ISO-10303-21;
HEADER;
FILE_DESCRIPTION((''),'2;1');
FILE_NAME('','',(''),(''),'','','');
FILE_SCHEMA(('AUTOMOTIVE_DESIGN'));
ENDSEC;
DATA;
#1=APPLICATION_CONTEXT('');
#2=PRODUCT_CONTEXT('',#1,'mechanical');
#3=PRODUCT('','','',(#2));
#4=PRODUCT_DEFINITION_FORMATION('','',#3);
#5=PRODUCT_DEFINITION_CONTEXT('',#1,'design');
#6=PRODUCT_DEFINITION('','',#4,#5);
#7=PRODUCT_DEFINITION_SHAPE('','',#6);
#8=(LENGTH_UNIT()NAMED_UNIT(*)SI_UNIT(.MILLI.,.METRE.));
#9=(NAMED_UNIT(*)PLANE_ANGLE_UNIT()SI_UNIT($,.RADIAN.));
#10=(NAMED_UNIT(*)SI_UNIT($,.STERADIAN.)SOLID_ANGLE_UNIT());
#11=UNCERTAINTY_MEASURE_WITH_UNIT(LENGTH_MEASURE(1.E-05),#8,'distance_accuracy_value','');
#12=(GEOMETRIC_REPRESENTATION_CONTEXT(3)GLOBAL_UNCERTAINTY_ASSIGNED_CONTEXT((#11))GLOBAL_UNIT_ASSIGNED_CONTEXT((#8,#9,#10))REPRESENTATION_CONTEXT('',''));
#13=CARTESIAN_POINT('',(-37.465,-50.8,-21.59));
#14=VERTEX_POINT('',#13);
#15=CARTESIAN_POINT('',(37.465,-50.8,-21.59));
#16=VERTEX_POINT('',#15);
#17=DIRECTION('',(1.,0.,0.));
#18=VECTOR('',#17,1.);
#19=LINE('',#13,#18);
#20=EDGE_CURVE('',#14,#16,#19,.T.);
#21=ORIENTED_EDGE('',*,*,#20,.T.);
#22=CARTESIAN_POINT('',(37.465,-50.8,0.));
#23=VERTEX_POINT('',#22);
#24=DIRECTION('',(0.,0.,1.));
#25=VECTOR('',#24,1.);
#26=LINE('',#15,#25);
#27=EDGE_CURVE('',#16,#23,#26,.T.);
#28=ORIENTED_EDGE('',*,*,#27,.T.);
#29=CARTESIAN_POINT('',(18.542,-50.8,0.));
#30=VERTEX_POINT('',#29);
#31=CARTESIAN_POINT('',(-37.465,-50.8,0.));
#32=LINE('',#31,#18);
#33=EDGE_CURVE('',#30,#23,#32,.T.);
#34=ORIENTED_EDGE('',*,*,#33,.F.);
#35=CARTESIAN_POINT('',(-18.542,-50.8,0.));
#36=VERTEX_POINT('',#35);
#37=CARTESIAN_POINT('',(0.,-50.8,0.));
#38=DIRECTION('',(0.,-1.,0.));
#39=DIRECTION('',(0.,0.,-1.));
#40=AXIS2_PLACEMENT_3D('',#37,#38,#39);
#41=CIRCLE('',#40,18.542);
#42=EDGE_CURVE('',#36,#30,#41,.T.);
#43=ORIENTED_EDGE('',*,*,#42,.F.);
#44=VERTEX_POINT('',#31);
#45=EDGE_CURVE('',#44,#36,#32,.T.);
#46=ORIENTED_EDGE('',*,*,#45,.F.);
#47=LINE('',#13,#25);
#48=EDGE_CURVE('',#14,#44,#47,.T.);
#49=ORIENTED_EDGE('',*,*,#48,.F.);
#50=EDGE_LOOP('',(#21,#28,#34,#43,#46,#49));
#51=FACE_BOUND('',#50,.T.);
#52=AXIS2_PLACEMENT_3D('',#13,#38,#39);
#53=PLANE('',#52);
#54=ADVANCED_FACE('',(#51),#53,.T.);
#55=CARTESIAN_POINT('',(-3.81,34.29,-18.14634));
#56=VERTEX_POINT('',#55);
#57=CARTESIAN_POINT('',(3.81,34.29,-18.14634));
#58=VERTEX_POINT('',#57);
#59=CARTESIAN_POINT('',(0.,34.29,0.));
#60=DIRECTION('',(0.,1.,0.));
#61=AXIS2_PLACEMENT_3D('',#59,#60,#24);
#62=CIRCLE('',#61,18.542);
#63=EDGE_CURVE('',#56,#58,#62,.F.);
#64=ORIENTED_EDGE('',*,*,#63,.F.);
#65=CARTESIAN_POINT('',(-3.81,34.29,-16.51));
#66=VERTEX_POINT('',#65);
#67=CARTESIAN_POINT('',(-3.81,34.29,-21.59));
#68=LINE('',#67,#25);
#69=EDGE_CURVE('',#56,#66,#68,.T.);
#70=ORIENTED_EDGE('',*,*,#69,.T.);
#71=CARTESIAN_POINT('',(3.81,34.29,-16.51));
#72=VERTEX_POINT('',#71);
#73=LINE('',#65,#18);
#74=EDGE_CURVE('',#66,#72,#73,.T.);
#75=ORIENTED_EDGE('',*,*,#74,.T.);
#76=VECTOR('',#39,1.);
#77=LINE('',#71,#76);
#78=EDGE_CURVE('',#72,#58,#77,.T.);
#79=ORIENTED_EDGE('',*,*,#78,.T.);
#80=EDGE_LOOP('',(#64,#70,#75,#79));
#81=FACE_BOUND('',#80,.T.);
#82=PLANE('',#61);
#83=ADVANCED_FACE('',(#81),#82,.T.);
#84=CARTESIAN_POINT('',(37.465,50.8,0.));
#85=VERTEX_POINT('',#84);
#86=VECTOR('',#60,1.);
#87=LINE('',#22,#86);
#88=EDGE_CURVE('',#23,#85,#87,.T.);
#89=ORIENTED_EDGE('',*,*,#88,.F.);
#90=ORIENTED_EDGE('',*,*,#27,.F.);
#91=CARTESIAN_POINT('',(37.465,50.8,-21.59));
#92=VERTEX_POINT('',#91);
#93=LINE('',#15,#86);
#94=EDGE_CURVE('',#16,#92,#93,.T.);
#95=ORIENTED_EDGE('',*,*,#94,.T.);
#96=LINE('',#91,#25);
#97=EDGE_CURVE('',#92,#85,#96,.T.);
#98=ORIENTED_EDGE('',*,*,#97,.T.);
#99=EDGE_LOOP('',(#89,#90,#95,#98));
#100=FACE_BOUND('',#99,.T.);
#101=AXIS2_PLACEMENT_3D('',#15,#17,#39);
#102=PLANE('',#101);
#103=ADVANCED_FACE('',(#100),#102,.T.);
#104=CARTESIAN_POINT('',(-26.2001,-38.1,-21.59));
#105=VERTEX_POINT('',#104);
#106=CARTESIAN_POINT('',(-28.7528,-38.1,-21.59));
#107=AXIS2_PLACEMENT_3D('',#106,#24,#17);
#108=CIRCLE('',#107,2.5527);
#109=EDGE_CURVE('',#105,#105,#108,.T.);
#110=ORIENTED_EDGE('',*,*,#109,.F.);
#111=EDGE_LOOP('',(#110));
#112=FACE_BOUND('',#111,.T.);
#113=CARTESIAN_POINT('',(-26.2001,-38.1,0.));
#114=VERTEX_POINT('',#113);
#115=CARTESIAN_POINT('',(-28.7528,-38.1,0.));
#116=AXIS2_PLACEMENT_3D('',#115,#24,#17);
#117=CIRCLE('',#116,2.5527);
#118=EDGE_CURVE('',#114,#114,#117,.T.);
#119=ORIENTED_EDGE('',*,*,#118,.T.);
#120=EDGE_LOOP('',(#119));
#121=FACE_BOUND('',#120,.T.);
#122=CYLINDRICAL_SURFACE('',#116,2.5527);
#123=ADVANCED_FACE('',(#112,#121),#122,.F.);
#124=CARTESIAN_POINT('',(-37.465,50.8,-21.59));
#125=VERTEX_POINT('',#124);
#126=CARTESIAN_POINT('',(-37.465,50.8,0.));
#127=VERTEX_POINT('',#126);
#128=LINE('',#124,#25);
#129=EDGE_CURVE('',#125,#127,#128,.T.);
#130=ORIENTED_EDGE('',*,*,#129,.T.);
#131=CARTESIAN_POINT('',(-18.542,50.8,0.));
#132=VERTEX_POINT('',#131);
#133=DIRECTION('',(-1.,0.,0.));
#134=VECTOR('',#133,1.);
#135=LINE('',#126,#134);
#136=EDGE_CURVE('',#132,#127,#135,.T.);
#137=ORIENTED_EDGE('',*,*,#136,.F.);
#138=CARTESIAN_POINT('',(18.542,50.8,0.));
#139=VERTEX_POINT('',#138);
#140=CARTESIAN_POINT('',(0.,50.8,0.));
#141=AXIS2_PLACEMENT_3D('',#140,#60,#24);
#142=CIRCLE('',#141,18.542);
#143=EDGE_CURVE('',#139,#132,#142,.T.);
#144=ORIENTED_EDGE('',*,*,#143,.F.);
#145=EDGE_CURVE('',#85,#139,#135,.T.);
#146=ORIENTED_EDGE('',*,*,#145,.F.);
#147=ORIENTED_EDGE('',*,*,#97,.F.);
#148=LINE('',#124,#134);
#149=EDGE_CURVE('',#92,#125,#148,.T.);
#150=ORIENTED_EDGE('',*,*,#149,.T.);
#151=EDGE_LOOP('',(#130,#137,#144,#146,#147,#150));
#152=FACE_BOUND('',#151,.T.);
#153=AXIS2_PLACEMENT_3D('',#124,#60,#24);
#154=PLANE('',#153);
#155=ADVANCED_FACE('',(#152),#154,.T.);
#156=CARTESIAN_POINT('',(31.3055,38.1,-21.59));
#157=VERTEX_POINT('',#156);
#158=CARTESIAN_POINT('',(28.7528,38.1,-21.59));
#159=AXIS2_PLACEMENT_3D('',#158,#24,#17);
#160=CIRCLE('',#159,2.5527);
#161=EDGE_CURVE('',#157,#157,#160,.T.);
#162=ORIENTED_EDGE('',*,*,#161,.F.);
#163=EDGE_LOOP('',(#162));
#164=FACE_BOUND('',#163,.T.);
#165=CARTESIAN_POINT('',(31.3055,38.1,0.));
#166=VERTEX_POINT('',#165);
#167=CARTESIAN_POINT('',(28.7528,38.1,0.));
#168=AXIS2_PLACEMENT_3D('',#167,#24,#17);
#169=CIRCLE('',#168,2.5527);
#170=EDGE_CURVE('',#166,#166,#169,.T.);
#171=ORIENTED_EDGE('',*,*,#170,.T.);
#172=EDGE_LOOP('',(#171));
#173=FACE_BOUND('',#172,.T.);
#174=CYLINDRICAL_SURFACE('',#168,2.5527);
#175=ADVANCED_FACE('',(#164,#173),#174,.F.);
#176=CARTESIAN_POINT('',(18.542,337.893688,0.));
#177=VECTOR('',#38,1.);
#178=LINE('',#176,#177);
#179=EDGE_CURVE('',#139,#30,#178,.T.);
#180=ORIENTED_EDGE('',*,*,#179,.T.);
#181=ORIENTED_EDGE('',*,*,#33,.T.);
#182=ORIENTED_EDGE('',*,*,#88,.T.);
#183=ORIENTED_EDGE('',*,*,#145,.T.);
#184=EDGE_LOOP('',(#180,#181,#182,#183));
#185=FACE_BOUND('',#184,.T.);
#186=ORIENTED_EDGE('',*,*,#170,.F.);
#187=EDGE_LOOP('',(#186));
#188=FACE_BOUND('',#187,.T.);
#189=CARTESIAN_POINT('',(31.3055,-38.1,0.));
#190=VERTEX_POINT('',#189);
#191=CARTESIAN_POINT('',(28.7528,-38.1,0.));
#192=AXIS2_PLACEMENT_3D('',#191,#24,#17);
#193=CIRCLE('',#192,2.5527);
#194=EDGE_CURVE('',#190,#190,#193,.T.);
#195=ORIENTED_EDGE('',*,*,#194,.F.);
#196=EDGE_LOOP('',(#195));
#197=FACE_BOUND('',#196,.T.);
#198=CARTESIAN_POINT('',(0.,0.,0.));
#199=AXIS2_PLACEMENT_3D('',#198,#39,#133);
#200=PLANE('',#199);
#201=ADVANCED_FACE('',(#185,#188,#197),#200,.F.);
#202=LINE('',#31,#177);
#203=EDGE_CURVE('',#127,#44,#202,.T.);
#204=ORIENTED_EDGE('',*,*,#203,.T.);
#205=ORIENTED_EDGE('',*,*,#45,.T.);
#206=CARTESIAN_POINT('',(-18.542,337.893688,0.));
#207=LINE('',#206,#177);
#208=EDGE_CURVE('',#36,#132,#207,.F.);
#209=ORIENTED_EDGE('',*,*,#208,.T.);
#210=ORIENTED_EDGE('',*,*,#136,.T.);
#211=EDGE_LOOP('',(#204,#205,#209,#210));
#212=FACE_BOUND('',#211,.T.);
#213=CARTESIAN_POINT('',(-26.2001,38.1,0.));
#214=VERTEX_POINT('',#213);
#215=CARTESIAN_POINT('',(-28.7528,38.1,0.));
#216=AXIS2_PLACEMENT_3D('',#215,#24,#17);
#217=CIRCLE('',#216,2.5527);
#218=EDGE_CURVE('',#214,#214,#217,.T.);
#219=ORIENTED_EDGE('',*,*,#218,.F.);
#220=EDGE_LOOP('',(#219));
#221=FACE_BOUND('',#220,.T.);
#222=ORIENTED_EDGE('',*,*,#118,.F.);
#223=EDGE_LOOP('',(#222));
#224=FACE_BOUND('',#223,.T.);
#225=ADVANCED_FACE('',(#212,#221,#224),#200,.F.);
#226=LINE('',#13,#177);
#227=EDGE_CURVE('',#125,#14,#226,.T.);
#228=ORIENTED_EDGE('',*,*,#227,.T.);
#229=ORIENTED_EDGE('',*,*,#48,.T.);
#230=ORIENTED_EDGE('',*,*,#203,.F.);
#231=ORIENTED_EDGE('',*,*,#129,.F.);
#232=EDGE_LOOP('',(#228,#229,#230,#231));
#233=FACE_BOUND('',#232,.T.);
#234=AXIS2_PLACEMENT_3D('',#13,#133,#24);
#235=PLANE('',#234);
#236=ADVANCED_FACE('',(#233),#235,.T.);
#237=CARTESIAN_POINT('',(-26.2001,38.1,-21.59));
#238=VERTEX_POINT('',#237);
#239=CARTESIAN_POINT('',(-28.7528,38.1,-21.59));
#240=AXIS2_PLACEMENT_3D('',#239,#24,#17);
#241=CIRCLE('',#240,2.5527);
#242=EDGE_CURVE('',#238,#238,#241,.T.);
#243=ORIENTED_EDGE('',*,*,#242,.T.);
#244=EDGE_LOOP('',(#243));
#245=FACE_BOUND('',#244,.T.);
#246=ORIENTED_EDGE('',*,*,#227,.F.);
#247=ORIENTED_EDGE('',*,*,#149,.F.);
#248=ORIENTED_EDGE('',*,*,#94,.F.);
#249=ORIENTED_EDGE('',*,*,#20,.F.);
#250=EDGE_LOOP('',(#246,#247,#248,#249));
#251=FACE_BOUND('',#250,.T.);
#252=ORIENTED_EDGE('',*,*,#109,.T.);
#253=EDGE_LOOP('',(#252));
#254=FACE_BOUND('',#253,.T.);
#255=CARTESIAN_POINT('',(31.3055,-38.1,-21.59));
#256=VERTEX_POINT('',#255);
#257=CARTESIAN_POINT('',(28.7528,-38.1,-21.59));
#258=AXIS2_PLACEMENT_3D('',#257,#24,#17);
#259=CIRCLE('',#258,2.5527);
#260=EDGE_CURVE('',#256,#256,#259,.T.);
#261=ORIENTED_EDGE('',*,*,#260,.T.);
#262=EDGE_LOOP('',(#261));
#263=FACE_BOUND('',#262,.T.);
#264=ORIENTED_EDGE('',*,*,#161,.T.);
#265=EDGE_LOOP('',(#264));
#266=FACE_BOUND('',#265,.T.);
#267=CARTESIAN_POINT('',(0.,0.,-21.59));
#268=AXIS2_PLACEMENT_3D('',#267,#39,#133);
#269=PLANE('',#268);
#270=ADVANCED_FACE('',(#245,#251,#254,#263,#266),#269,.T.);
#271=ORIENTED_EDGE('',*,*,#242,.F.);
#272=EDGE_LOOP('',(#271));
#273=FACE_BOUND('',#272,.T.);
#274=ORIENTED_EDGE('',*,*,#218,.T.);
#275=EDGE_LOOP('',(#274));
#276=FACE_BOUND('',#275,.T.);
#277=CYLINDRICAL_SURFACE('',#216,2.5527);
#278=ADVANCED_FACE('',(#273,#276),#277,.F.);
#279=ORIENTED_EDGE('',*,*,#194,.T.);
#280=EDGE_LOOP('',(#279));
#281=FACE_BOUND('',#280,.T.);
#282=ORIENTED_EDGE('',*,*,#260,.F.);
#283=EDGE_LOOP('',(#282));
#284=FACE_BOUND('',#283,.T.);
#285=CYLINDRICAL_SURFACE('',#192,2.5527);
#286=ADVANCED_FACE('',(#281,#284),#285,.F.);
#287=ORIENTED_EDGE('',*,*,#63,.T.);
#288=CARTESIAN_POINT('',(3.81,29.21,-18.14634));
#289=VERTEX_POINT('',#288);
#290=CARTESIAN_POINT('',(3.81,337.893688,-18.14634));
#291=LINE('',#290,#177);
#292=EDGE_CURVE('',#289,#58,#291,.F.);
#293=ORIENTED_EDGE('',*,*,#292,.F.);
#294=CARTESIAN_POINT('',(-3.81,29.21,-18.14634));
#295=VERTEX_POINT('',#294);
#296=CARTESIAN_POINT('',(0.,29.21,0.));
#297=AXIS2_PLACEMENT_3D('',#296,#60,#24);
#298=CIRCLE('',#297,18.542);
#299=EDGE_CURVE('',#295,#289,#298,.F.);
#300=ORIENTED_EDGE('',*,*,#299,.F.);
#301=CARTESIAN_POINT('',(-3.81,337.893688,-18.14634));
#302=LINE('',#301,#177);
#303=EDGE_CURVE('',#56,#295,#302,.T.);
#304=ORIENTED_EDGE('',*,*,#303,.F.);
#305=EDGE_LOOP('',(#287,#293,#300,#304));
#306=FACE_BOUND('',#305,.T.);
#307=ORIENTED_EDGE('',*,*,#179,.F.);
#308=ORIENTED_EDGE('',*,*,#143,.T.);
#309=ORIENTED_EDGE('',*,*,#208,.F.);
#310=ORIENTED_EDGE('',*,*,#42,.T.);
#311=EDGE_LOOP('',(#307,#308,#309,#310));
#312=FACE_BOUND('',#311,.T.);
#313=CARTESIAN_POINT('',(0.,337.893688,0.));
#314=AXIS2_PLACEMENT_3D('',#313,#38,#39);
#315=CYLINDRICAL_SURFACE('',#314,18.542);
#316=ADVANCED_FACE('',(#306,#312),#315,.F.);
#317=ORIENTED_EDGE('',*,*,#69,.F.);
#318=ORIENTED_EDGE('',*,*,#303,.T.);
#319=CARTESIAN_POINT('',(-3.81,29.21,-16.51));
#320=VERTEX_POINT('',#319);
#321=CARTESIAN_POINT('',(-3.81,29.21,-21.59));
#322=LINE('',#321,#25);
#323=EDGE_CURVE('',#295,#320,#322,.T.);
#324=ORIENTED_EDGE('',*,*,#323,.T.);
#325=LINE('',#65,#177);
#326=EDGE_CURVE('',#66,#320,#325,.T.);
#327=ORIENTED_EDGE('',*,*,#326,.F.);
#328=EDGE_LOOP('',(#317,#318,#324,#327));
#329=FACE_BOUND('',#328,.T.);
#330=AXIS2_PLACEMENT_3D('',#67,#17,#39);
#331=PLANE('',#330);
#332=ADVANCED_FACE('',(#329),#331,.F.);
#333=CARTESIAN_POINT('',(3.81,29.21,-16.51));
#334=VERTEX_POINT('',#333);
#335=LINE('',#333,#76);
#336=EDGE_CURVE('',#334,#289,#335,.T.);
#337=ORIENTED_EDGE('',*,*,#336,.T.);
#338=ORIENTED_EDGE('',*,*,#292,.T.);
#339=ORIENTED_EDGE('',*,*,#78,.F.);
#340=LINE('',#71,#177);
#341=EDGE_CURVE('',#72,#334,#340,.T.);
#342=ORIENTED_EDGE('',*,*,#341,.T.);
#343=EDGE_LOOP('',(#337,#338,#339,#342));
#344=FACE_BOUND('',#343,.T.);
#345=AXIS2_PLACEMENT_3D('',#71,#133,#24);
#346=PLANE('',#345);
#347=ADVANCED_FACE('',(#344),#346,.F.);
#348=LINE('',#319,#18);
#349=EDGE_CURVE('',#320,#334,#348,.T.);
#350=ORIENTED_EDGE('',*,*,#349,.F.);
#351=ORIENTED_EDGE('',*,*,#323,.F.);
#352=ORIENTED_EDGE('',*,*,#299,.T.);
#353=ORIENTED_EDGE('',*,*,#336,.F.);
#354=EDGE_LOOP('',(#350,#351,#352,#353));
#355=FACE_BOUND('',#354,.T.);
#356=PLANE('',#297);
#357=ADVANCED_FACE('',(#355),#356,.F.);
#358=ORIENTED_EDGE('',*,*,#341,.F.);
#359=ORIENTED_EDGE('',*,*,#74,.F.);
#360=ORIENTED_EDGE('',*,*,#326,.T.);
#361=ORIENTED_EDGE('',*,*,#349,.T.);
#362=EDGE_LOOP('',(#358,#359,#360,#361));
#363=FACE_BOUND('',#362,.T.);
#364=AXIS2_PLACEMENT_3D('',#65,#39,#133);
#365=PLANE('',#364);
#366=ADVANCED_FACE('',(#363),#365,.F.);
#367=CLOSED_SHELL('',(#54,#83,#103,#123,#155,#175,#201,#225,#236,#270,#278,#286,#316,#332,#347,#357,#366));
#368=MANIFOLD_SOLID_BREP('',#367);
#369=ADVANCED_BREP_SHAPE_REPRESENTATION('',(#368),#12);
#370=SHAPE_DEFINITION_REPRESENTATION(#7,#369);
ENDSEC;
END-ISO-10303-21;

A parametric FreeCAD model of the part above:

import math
import FreeCAD as App
import Part
import Sketcher

V = App.Vector
Q = App.Units.Quantity


def add_polygon(sketch, points):
    """Adds a closed chain of lines whose ends are joined by coincident constraints."""
    first, n = sketch.GeometryCount, len(points)
    for a, b in zip(points, points[1:] + points[:1]):
        sketch.addGeometry(Part.LineSegment(App.Vector(*a, 0), App.Vector(*b, 0)), False)
    for i in range(n):
        sketch.addConstraint(Sketcher.Constraint("Coincident", first + i, 2, first + (i + 1) % n, 1))

doc = App.newDocument("Part")
body = doc.addObject("PartDesign::Body", "Body")

# Sketch on XY plane
sketch1 = body.newObject("Sketcher::SketchObject", "Sketch")
sketch1.AttachmentSupport = (doc.getObject("XY_Plane"), [""])
sketch1.MapMode = "FlatFace"
add_polygon(sketch1, [(-37, 51), (-37, -51), (37, -51), (37, 51)])  # lines 0-3
sketch1.addConstraint([
    Sketcher.Constraint("Vertical", 0),
    Sketcher.Constraint("Horizontal", 1),
    Sketcher.Constraint("Vertical", 2),
    Sketcher.Constraint("Horizontal", 3),
    Sketcher.Constraint("Symmetric", 0, 2, 2, 2, -1, 1),
    Sketcher.Constraint("DistanceY", 0, 2, 0, 1, Q("4 in")),
    Sketcher.Constraint("DistanceX", 1, 1, 1, 2, Q("2.95 in")),
])
pad1 = body.newObject("PartDesign::Pad", "Pad")
pad1.Profile = sketch1
pad1.Length = Q("0.85 in")
pad1.Reversed = True

# Sketch on XZ plane
sketch2 = body.newObject("Sketcher::SketchObject", "Sketch001")
sketch2.AttachmentSupport = (doc.getObject("XZ_Plane"), [""])
sketch2.MapMode = "FlatFace"
sketch2.AttachmentOffset = App.Placement(V(0, 0, -2 * 25.4), App.Rotation())
sketch2.addGeometry([
    Part.ArcOfCircle(Part.Circle(V(0, 0, 0), V(0, 0, 1), 19), math.radians(180), math.radians(360)),
    Part.LineSegment(V(-19, 0, 0), V(-19, 390, 0)),
    Part.LineSegment(V(-19, 390, 0), V(19, 390, 0)),
    Part.LineSegment(V(19, 390, 0), V(19, 0, 0)),
], False)
sketch2.addConstraint([
    Sketcher.Constraint("Tangent", 0, 1, 1, 1),
    Sketcher.Constraint("Coincident", 1, 2, 2, 1),
    Sketcher.Constraint("Coincident", 2, 2, 3, 1),
    Sketcher.Constraint("Tangent", 3, 2, 0, 2),
    Sketcher.Constraint("Vertical", 1),
    Sketcher.Constraint("Horizontal", 2),
    Sketcher.Constraint("Vertical", 3),
    Sketcher.Constraint("Coincident", 0, 3, -1, 1),
    Sketcher.Constraint("Radius", 0, Q("0.73 in")),
    Sketcher.Constraint("DistanceY", 1, 1, 1, 2, 390.145578),
])
pocket1 = body.newObject("PartDesign::Pocket", "Pocket")
pocket1.Profile = sketch2
pocket1.Type = "ThroughAll"
pocket1.Midplane = True

# Sketch on XZ plane
sketch3 = body.newObject("Sketcher::SketchObject", "Sketch002")
sketch3.AttachmentSupport = (doc.getObject("XZ_Plane"), [""])
sketch3.MapMode = "FlatFace"
sketch3.AttachmentOffset = App.Placement(V(0, 0, -1.25 * 25.4), App.Rotation())
add_polygon(sketch3, [(-4, -22), (-4, -17), (4, -17), (4, -22)])  # lines 0-3
sketch3.addConstraint([
    Sketcher.Constraint("Vertical", 0),
    Sketcher.Constraint("Horizontal", 1),
    Sketcher.Constraint("Vertical", 2),
    Sketcher.Constraint("Horizontal", 3),
    Sketcher.Constraint("DistanceX", 1, 1, 1, 2, Q("0.3 in")),
    Sketcher.Constraint("DistanceY", 0, 1, 0, 2, Q("0.2 in")),
    Sketcher.Constraint("DistanceX", 0, 2, -1, 1, Q("0.15 in")),
    Sketcher.Constraint("DistanceY", 0, 2, -1, 1, Q("0.65 in")),
])
pad2 = body.newObject("PartDesign::Pad", "Pad001")
pad2.Profile = sketch3
pad2.Length = Q("0.2 in")
pad2.Midplane = True

# Sketch on XY plane
sketch4 = body.newObject("Sketcher::SketchObject", "Sketch003")
sketch4.AttachmentSupport = (doc.getObject("XY_Plane"), [""])
sketch4.MapMode = "FlatFace"
sketch4.addGeometry([
    Part.Circle(V(-28.8, 38.1, 0), V(0, 0, 1), 2.6),
    Part.Circle(V(28.8, 38.1, 0), V(0, 0, 1), 2.6),
    Part.Circle(V(-28.8, -38.1, 0), V(0, 0, 1), 2.6),
    Part.Circle(V(28.8, -38.1, 0), V(0, 0, 1), 2.6),
], False)
sketch4.addConstraint([
    Sketcher.Constraint("Equal", 0, 1),
    Sketcher.Constraint("Equal", 1, 2),
    Sketcher.Constraint("Equal", 2, 3),
    Sketcher.Constraint("Symmetric", 1, 3, 2, 3, -1, 1),
    Sketcher.Constraint("Symmetric", 0, 3, 3, 3, -1, 1),
    Sketcher.Constraint("Symmetric", 0, 3, 1, 3, -2),
    Sketcher.Constraint("Diameter", 0, Q("0.201 in")),
    Sketcher.Constraint("DistanceY", 2, 3, 0, 3, Q("3 in")),
    Sketcher.Constraint("DistanceX", 0, 3, -1, 1, Q("1.132 in")),
])
doc.recompute()
hole = body.newObject("PartDesign::Hole", "Hole")
hole.Profile = sketch4
hole.ThreadType = "None"
hole.Diameter = Q("0.201 in")
hole.DepthType = "ThroughAll"

doc.recompute()
